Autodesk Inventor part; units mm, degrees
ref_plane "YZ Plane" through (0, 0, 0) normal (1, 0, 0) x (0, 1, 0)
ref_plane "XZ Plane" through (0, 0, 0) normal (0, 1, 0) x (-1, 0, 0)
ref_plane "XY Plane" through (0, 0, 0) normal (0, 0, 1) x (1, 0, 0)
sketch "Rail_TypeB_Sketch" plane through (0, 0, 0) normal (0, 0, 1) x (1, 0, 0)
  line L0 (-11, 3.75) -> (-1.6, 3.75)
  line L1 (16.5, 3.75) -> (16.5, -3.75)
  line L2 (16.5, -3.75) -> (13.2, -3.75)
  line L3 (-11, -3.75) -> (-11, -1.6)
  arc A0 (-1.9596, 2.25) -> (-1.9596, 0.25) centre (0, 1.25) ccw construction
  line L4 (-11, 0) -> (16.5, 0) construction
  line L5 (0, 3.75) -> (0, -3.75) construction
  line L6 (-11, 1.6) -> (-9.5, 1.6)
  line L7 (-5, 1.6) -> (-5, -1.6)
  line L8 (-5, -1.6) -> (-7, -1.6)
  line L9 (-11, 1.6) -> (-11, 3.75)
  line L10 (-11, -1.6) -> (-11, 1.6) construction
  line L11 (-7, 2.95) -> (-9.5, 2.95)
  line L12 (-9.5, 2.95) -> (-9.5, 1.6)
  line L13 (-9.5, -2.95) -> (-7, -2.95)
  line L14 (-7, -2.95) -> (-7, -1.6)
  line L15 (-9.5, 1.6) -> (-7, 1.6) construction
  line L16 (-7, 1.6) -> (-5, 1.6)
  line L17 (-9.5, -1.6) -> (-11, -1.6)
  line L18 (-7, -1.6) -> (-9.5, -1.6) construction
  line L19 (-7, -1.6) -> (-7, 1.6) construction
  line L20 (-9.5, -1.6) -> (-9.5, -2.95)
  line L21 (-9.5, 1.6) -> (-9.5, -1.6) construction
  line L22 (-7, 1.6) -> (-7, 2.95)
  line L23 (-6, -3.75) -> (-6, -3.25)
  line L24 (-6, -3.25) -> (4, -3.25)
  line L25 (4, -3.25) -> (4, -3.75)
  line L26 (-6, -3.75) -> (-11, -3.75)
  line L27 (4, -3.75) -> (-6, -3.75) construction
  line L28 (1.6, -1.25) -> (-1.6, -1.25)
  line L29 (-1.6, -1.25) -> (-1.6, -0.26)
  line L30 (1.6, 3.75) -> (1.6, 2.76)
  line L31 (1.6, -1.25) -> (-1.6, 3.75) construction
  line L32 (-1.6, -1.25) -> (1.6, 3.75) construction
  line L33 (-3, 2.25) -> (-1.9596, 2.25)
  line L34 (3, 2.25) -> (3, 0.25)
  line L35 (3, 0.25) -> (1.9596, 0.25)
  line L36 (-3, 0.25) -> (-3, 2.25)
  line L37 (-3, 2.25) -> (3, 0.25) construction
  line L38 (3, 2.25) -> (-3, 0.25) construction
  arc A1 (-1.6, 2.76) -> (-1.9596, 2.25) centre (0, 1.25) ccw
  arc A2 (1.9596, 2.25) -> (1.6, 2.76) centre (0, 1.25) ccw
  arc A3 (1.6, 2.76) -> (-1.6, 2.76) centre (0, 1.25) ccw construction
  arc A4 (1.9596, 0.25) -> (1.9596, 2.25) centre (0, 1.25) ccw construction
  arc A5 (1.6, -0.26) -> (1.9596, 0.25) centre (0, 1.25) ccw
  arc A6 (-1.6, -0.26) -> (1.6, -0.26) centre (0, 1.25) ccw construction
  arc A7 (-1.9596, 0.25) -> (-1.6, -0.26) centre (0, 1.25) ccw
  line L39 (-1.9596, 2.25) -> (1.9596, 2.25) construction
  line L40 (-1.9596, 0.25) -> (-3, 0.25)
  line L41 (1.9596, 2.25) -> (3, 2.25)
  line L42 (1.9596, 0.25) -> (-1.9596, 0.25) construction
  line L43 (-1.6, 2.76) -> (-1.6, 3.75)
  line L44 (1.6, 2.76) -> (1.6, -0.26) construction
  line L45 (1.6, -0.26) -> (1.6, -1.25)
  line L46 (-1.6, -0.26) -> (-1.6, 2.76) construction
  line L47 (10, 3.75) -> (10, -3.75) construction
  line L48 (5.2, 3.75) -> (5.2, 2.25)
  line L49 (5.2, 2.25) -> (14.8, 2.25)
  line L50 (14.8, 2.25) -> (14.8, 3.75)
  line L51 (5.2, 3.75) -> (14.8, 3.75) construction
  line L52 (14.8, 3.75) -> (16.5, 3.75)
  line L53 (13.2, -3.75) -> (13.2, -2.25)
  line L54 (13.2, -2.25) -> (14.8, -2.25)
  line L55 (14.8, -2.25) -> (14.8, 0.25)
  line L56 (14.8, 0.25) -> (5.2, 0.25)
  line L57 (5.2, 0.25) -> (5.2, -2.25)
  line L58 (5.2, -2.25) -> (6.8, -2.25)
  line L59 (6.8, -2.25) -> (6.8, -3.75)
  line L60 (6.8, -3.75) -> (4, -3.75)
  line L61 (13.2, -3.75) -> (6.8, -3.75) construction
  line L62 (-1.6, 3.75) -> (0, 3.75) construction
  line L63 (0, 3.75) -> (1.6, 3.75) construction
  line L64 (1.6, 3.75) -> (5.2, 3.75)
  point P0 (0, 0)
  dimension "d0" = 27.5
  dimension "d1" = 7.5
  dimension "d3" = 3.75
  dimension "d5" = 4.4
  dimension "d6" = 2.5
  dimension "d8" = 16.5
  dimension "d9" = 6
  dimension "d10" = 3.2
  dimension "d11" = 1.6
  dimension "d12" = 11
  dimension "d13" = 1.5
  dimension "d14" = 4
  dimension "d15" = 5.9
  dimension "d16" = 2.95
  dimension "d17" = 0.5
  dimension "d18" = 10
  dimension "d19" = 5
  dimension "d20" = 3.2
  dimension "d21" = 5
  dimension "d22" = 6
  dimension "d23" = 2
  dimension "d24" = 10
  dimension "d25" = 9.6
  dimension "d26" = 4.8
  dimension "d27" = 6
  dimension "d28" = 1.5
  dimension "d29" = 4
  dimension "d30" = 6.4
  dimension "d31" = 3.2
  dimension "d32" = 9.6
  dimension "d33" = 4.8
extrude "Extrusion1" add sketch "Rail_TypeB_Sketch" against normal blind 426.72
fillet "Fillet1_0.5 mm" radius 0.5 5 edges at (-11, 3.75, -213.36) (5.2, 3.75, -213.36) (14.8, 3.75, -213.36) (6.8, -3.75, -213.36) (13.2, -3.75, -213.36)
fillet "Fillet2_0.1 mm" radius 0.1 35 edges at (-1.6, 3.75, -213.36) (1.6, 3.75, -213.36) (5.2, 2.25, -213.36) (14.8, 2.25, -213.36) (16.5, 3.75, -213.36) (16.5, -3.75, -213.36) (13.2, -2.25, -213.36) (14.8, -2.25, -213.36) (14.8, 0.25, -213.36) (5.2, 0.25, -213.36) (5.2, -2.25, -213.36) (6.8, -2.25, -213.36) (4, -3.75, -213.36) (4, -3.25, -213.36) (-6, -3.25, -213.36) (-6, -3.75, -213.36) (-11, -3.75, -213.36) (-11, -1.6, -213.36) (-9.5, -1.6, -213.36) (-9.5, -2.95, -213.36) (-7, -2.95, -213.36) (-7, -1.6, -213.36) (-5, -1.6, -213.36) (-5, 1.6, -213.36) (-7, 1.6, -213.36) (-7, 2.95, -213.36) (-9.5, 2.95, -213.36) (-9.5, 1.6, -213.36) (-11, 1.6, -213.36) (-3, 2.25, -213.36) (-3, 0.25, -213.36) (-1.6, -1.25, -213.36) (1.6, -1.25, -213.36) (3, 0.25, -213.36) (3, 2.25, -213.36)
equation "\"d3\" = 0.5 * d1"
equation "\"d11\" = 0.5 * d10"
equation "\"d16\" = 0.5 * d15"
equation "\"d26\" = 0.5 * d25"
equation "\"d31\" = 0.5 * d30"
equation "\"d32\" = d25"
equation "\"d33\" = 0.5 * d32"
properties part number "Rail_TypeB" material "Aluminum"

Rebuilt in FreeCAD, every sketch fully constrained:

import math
import FreeCAD as App
import Part
import Sketcher
from FreeCAD import Vector


def edges_at(feature, points):
    """Names of the edges that pass closest to the given points."""
    edges = feature.Shape.Edges
    near = lambda p: min(range(len(edges)), key=lambda i: edges[i].distToShape(Part.Vertex(*p))[0])
    return sorted({f"Edge{near(p) + 1}" for p in points})

doc = App.newDocument("Part")
body = doc.addObject("PartDesign::Body", "Body")

# Sketch on XY plane
sketch1 = body.newObject("Sketcher::SketchObject", "Sketch")
sketch1.AttachmentSupport = (doc.getObject("XY_Plane"), [""])
sketch1.MapMode = "FlatFace"
sketch1.addGeometry(Part.LineSegment(Vector(-1.6, 3.75, 0), Vector(-11, 3.75, 0)), False)
sketch1.addGeometry(Part.LineSegment(Vector(-11, 3.75, 0), Vector(-11, 1.6, 0)), False)
sketch1.addGeometry(Part.LineSegment(Vector(-11, 1.6, 0), Vector(-9.5, 1.6, 0)), False)
sketch1.addGeometry(Part.LineSegment(Vector(-9.5, 1.6, 0), Vector(-9.5, 2.95, 0)), False)
sketch1.addGeometry(Part.LineSegment(Vector(-9.5, 2.95, 0), Vector(-7, 2.95, 0)), False)
sketch1.addGeometry(Part.LineSegment(Vector(-7, 2.95, 0), Vector(-7, 1.6, 0)), False)
sketch1.addGeometry(Part.LineSegment(Vector(-7, 1.6, 0), Vector(-5, 1.6, 0)), False)
sketch1.addGeometry(Part.LineSegment(Vector(-5, 1.6, 0), Vector(-5, -1.6, 0)), False)
sketch1.addGeometry(Part.LineSegment(Vector(-5, -1.6, 0), Vector(-7, -1.6, 0)), False)
sketch1.addGeometry(Part.LineSegment(Vector(-7, -1.6, 0), Vector(-7, -2.95, 0)), False)
sketch1.addGeometry(Part.LineSegment(Vector(-7, -2.95, 0), Vector(-9.5, -2.95, 0)), False)
sketch1.addGeometry(Part.LineSegment(Vector(-9.5, -2.95, 0), Vector(-9.5, -1.6, 0)), False)
sketch1.addGeometry(Part.LineSegment(Vector(-9.5, -1.6, 0), Vector(-11, -1.6, 0)), False)
sketch1.addGeometry(Part.LineSegment(Vector(-11, -1.6, 0), Vector(-11, -3.75, 0)), False)
sketch1.addGeometry(Part.LineSegment(Vector(-11, -3.75, 0), Vector(-6, -3.75, 0)), False)
sketch1.addGeometry(Part.LineSegment(Vector(-6, -3.75, 0), Vector(-6, -3.25, 0)), False)
sketch1.addGeometry(Part.LineSegment(Vector(-6, -3.25, 0), Vector(4, -3.25, 0)), False)
sketch1.addGeometry(Part.LineSegment(Vector(4, -3.25, 0), Vector(4, -3.75, 0)), False)
sketch1.addGeometry(Part.LineSegment(Vector(4, -3.75, 0), Vector(6.8, -3.75, 0)), False)
sketch1.addGeometry(Part.LineSegment(Vector(6.8, -3.75, 0), Vector(6.8, -2.25, 0)), False)
sketch1.addGeometry(Part.LineSegment(Vector(6.8, -2.25, 0), Vector(5.2, -2.25, 0)), False)
sketch1.addGeometry(Part.LineSegment(Vector(5.2, -2.25, 0), Vector(5.2, 0.25, 0)), False)
sketch1.addGeometry(Part.LineSegment(Vector(5.2, 0.25, 0), Vector(14.8, 0.25, 0)), False)
sketch1.addGeometry(Part.LineSegment(Vector(14.8, 0.25, 0), Vector(14.8, -2.25, 0)), False)
sketch1.addGeometry(Part.LineSegment(Vector(14.8, -2.25, 0), Vector(13.2, -2.25, 0)), False)
sketch1.addGeometry(Part.LineSegment(Vector(13.2, -2.25, 0), Vector(13.2, -3.75, 0)), False)
sketch1.addGeometry(Part.LineSegment(Vector(13.2, -3.75, 0), Vector(16.5, -3.75, 0)), False)
sketch1.addGeometry(Part.LineSegment(Vector(16.5, -3.75, 0), Vector(16.5, 3.75, 0)), False)
sketch1.addGeometry(Part.LineSegment(Vector(16.5, 3.75, 0), Vector(14.8, 3.75, 0)), False)
sketch1.addGeometry(Part.LineSegment(Vector(14.8, 3.75, 0), Vector(14.8, 2.25, 0)), False)
sketch1.addGeometry(Part.LineSegment(Vector(14.8, 2.25, 0), Vector(5.2, 2.25, 0)), False)
sketch1.addGeometry(Part.LineSegment(Vector(5.2, 2.25, 0), Vector(5.2, 3.75, 0)), False)
sketch1.addGeometry(Part.LineSegment(Vector(5.2, 3.75, 0), Vector(1.6, 3.75, 0)), False)
sketch1.addGeometry(Part.LineSegment(Vector(1.6, 3.75, 0), Vector(1.6, 2.76, 0)), False)
sketch1.addGeometry(Part.ArcOfCircle(Part.Circle(Vector(0, 1.25, 0), Vector(0, 0, 1), 2.200023), math.radians(27.035595), math.radians(43.342385)), False)
sketch1.addGeometry(Part.LineSegment(Vector(1.9596, 2.25, 0), Vector(3, 2.25, 0)), False)
sketch1.addGeometry(Part.LineSegment(Vector(3, 2.25, 0), Vector(3, 0.25, 0)), False)
sketch1.addGeometry(Part.LineSegment(Vector(3, 0.25, 0), Vector(1.9596, 0.25, 0)), False)
sketch1.addGeometry(Part.ArcOfCircle(Part.Circle(Vector(0, 1.25, 0), Vector(0, 0, 1), 2.200007), math.radians(-43.342385), math.radians(-27.035595)), False)
sketch1.addGeometry(Part.LineSegment(Vector(1.6, -0.26, 0), Vector(1.6, -1.25, 0)), False)
sketch1.addGeometry(Part.LineSegment(Vector(1.6, -1.25, 0), Vector(-1.6, -1.25, 0)), False)
sketch1.addGeometry(Part.LineSegment(Vector(-1.6, -1.25, 0), Vector(-1.6, -0.26, 0)), False)
sketch1.addGeometry(Part.ArcOfCircle(Part.Circle(Vector(0, 1.25, 0), Vector(0, 0, 1), 2.200023), math.radians(-152.964405), math.radians(-136.657615)), False)
sketch1.addGeometry(Part.LineSegment(Vector(-1.9596, 0.25, 0), Vector(-3, 0.25, 0)), False)
sketch1.addGeometry(Part.LineSegment(Vector(-3, 0.25, 0), Vector(-3, 2.25, 0)), False)
sketch1.addGeometry(Part.LineSegment(Vector(-3, 2.25, 0), Vector(-1.9596, 2.25, 0)), False)
sketch1.addGeometry(Part.ArcOfCircle(Part.Circle(Vector(0, 1.25, 0), Vector(0, 0, 1), 2.200007), math.radians(136.657615), math.radians(152.964405)), False)
sketch1.addGeometry(Part.LineSegment(Vector(-1.6, 2.76, 0), Vector(-1.6, 3.75, 0)), False)
sketch1.addConstraint(Sketcher.Constraint("Coincident", 0, 2, 1, 1))
sketch1.addConstraint(Sketcher.Constraint("Coincident", 1, 2, 2, 1))
sketch1.addConstraint(Sketcher.Constraint("Coincident", 2, 2, 3, 1))
sketch1.addConstraint(Sketcher.Constraint("Coincident", 3, 2, 4, 1))
sketch1.addConstraint(Sketcher.Constraint("Coincident", 4, 2, 5, 1))
sketch1.addConstraint(Sketcher.Constraint("Coincident", 5, 2, 6, 1))
sketch1.addConstraint(Sketcher.Constraint("Coincident", 6, 2, 7, 1))
sketch1.addConstraint(Sketcher.Constraint("Coincident", 7, 2, 8, 1))
sketch1.addConstraint(Sketcher.Constraint("Coincident", 8, 2, 9, 1))
sketch1.addConstraint(Sketcher.Constraint("Coincident", 9, 2, 10, 1))
sketch1.addConstraint(Sketcher.Constraint("Coincident", 10, 2, 11, 1))
sketch1.addConstraint(Sketcher.Constraint("Coincident", 11, 2, 12, 1))
sketch1.addConstraint(Sketcher.Constraint("Coincident", 12, 2, 13, 1))
sketch1.addConstraint(Sketcher.Constraint("Coincident", 13, 2, 14, 1))
sketch1.addConstraint(Sketcher.Constraint("Coincident", 14, 2, 15, 1))
sketch1.addConstraint(Sketcher.Constraint("Coincident", 15, 2, 16, 1))
sketch1.addConstraint(Sketcher.Constraint("Coincident", 16, 2, 17, 1))
sketch1.addConstraint(Sketcher.Constraint("Coincident", 17, 2, 18, 1))
sketch1.addConstraint(Sketcher.Constraint("Coincident", 18, 2, 19, 1))
sketch1.addConstraint(Sketcher.Constraint("Coincident", 19, 2, 20, 1))
sketch1.addConstraint(Sketcher.Constraint("Coincident", 20, 2, 21, 1))
sketch1.addConstraint(Sketcher.Constraint("Coincident", 21, 2, 22, 1))
sketch1.addConstraint(Sketcher.Constraint("Coincident", 22, 2, 23, 1))
sketch1.addConstraint(Sketcher.Constraint("Coincident", 23, 2, 24, 1))
sketch1.addConstraint(Sketcher.Constraint("Coincident", 24, 2, 25, 1))
sketch1.addConstraint(Sketcher.Constraint("Coincident", 25, 2, 26, 1))
sketch1.addConstraint(Sketcher.Constraint("Coincident", 26, 2, 27, 1))
sketch1.addConstraint(Sketcher.Constraint("Coincident", 27, 2, 28, 1))
sketch1.addConstraint(Sketcher.Constraint("Coincident", 28, 2, 29, 1))
sketch1.addConstraint(Sketcher.Constraint("Coincident", 29, 2, 30, 1))
sketch1.addConstraint(Sketcher.Constraint("Coincident", 30, 2, 31, 1))
sketch1.addConstraint(Sketcher.Constraint("Coincident", 31, 2, 32, 1))
sketch1.addConstraint(Sketcher.Constraint("Coincident", 32, 2, 33, 1))
sketch1.addConstraint(Sketcher.Constraint("Coincident", 33, 2, 34, 2))
sketch1.addConstraint(Sketcher.Constraint("Coincident", 34, 1, 35, 1))
sketch1.addConstraint(Sketcher.Constraint("Coincident", 35, 2, 36, 1))
sketch1.addConstraint(Sketcher.Constraint("Coincident", 36, 2, 37, 1))
sketch1.addConstraint(Sketcher.Constraint("Coincident", 37, 2, 38, 2))
sketch1.addConstraint(Sketcher.Constraint("Coincident", 38, 1, 39, 1))
sketch1.addConstraint(Sketcher.Constraint("Coincident", 39, 2, 40, 1))
sketch1.addConstraint(Sketcher.Constraint("Coincident", 40, 2, 41, 1))
sketch1.addConstraint(Sketcher.Constraint("Coincident", 41, 2, 42, 2))
sketch1.addConstraint(Sketcher.Constraint("Coincident", 42, 1, 43, 1))
sketch1.addConstraint(Sketcher.Constraint("Coincident", 43, 2, 44, 1))
sketch1.addConstraint(Sketcher.Constraint("Coincident", 44, 2, 45, 1))
sketch1.addConstraint(Sketcher.Constraint("Coincident", 45, 2, 46, 2))
sketch1.addConstraint(Sketcher.Constraint("Coincident", 46, 1, 47, 1))
sketch1.addConstraint(Sketcher.Constraint("Coincident", 47, 2, 0, 1))
sketch1.addConstraint(Sketcher.Constraint("Horizontal", 0))
sketch1.addConstraint(Sketcher.Constraint("Vertical", 1))
sketch1.addConstraint(Sketcher.Constraint("Horizontal", 2))
sketch1.addConstraint(Sketcher.Constraint("Vertical", 3))
sketch1.addConstraint(Sketcher.Constraint("Horizontal", 4))
sketch1.addConstraint(Sketcher.Constraint("Vertical", 5))
sketch1.addConstraint(Sketcher.Constraint("Horizontal", 6))
sketch1.addConstraint(Sketcher.Constraint("Vertical", 7))
sketch1.addConstraint(Sketcher.Constraint("Horizontal", 8))
sketch1.addConstraint(Sketcher.Constraint("Vertical", 9))
sketch1.addConstraint(Sketcher.Constraint("Horizontal", 10))
sketch1.addConstraint(Sketcher.Constraint("Vertical", 11))
sketch1.addConstraint(Sketcher.Constraint("Horizontal", 12))
sketch1.addConstraint(Sketcher.Constraint("Vertical", 13))
sketch1.addConstraint(Sketcher.Constraint("Horizontal", 14))
sketch1.addConstraint(Sketcher.Constraint("Vertical", 15))
sketch1.addConstraint(Sketcher.Constraint("Horizontal", 16))
sketch1.addConstraint(Sketcher.Constraint("Vertical", 17))
sketch1.addConstraint(Sketcher.Constraint("Horizontal", 18))
sketch1.addConstraint(Sketcher.Constraint("Vertical", 19))
sketch1.addConstraint(Sketcher.Constraint("Horizontal", 20))
sketch1.addConstraint(Sketcher.Constraint("Vertical", 21))
sketch1.addConstraint(Sketcher.Constraint("Horizontal", 22))
sketch1.addConstraint(Sketcher.Constraint("Vertical", 23))
sketch1.addConstraint(Sketcher.Constraint("Horizontal", 24))
sketch1.addConstraint(Sketcher.Constraint("Vertical", 25))
sketch1.addConstraint(Sketcher.Constraint("Horizontal", 26))
sketch1.addConstraint(Sketcher.Constraint("Vertical", 27))
sketch1.addConstraint(Sketcher.Constraint("Horizontal", 28))
sketch1.addConstraint(Sketcher.Constraint("Vertical", 29))
sketch1.addConstraint(Sketcher.Constraint("Horizontal", 30))
sketch1.addConstraint(Sketcher.Constraint("Vertical", 31))
sketch1.addConstraint(Sketcher.Constraint("Horizontal", 32))
sketch1.addConstraint(Sketcher.Constraint("Vertical", 33))
sketch1.addConstraint(Sketcher.Constraint("Horizontal", 35))
sketch1.addConstraint(Sketcher.Constraint("Vertical", 36))
sketch1.addConstraint(Sketcher.Constraint("Horizontal", 37))
sketch1.addConstraint(Sketcher.Constraint("Vertical", 39))
sketch1.addConstraint(Sketcher.Constraint("Horizontal", 40))
sketch1.addConstraint(Sketcher.Constraint("Vertical", 41))
sketch1.addConstraint(Sketcher.Constraint("Horizontal", 43))
sketch1.addConstraint(Sketcher.Constraint("Vertical", 44))
sketch1.addConstraint(Sketcher.Constraint("Horizontal", 45))
sketch1.addConstraint(Sketcher.Constraint("Vertical", 47))
sketch1.addConstraint(Sketcher.Constraint("Coincident", 38, 3, 34, 3))
sketch1.addConstraint(Sketcher.Constraint("Coincident", 42, 3, 34, 3))
sketch1.addConstraint(Sketcher.Constraint("Coincident", 46, 3, 34, 3))
sketch1.addConstraint(Sketcher.Constraint("Equal", 34, 38))
sketch1.addConstraint(Sketcher.Constraint("Equal", 38, 42))
sketch1.addConstraint(Sketcher.Constraint("Equal", 42, 46))
sketch1.addConstraint(Sketcher.Constraint("Symmetric", 38, 1, 41, 2, -2))
sketch1.addConstraint(Sketcher.Constraint("Symmetric", 36, 2, 43, 2, -2))
sketch1.addConstraint(Sketcher.Constraint("Symmetric", 32, 2, 47, 2, -2))
sketch1.addConstraint(Sketcher.Constraint("Symmetric", 5, 2, 8, 2, -1))
sketch1.addConstraint(Sketcher.Constraint("Symmetric", 3, 2, 10, 2, -1))
sketch1.addConstraint(Sketcher.Constraint("Symmetric", 1, 2, 12, 2, -1))
sketch1.addConstraint(Sketcher.Constraint("Symmetric", 23, 2, 29, 2, -1))
sketch1.addConstraint(Sketcher.Constraint("Symmetric", 20, 2, 30, 2, -1))
sketch1.addConstraint(Sketcher.Constraint("Horizontal", 2, 2, 5, 2))
sketch1.addConstraint(Sketcher.Constraint("Horizontal", 14, 2, 17, 2))
sketch1.addConstraint(Sketcher.Constraint("Horizontal", 18, 2, 25, 2))
sketch1.addConstraint(Sketcher.Constraint("Horizontal", 0, 2, 27, 2))
sketch1.addConstraint(Sketcher.Constraint("Horizontal", 30, 2, 34, 1))
sketch1.addConstraint(Sketcher.Constraint("Horizontal", 22, 2, 36, 2))
sketch1.addConstraint(Sketcher.Constraint("Horizontal", 35, 2, 44, 2))
sketch1.addConstraint(Sketcher.Constraint("Vertical", 34, 1, 37, 2))
sketch1.addConstraint(Sketcher.Constraint("Vertical", 33, 2, 38, 1))
sketch1.addConstraint(Sketcher.Constraint("Equal", 20, 24))
sketch1.addConstraint(Sketcher.Constraint("Equal", 40, 7))
sketch1.addConstraint(Sketcher.Constraint("Equal", 1, 13))
sketch1.addConstraint(Sketcher.Constraint("Equal", 12, 19))
sketch1.addConstraint(Sketcher.Constraint("Equal", 10, 21))
sketch1.addConstraint(Sketcher.Constraint("Equal", 8, 36))
sketch1.addConstraint(Sketcher.Constraint("Equal", 33, 39))
sketch1.addConstraint(Sketcher.Constraint("Radius", 34, 2.2))
sketch1.addConstraint(Sketcher.Constraint("DistanceX", 6, 1, 6, 2, 2.0))
sketch1.addConstraint(Sketcher.Constraint("DistanceX", 14, 1, 14, 2, 5.0))
sketch1.addConstraint(Sketcher.Constraint("DistanceX", 16, 1, 16, 2, 10.0))
sketch1.addConstraint(Sketcher.Constraint("DistanceX", 2, 1, 2, 2, 1.5))
sketch1.addConstraint(Sketcher.Constraint("DistanceX", 4, 1, 4, 2, 2.5))
sketch1.addConstraint(Sketcher.Constraint("DistanceX", 20, 2, 20, 1, 1.6))
sketch1.addConstraint(Sketcher.Constraint("DistanceX", 22, 1, 22, 2, 9.6))
sketch1.addConstraint(Sketcher.Constraint("DistanceX", 40, 2, 40, 1, 3.2))
sketch1.addConstraint(Sketcher.Constraint("DistanceY", 15, 1, 15, 2, 0.5))
sketch1.addConstraint(Sketcher.Constraint("DistanceX", 0, 2, -1, 1, 11.0))
sketch1.addConstraint(Sketcher.Constraint("DistanceX", 6, 2, 43, 2, 2.0))
sketch1.addConstraint(Sketcher.Constraint("DistanceX", -1, 1, 26, 2, 16.5))
sketch1.addConstraint(Sketcher.Constraint("DistanceY", -1, 1, 3, 2, 2.95))
sketch1.addConstraint(Sketcher.Constraint("DistanceX", 18, 1, 18, 2, 2.8))
pad1 = body.newObject("PartDesign::Pad", "Pad")
pad1.Profile = sketch1
pad1.Length = 426.72
pad1.Reversed = True
doc.recompute()

fillet = body.newObject("PartDesign::Fillet", "Fillet")
fillet.Base = (pad1, edges_at(pad1, [
    (-11, 3.75, -213.36),
    (5.2, 3.75, -213.36),
    (14.8, 3.75, -213.36),
    (6.8, -3.75, -213.36),
    (13.2, -3.75, -213.36),
]))
fillet.Radius = 0.5
doc.recompute()

fillet2 = body.newObject("PartDesign::Fillet", "Fillet001")
fillet2.Base = (fillet, edges_at(fillet, [
    (-1.6, 3.75, -213.36),
    (1.6, 3.75, -213.36),
    (5.2, 2.25, -213.36),
    (14.8, 2.25, -213.36),
    (16.5, 3.75, -213.36),
    (16.5, -3.75, -213.36),
    (13.2, -2.25, -213.36),
    (14.8, -2.25, -213.36),
    (14.8, 0.25, -213.36),
    (5.2, 0.25, -213.36),
    (5.2, -2.25, -213.36),
    (6.8, -2.25, -213.36),
    (4, -3.75, -213.36),
    (4, -3.25, -213.36),
    (-6, -3.25, -213.36),
    (-6, -3.75, -213.36),
    (-11, -3.75, -213.36),
    (-11, -1.6, -213.36),
    (-9.5, -1.6, -213.36),
    (-9.5, -2.95, -213.36),
    (-7, -2.95, -213.36),
    (-7, -1.6, -213.36),
    (-5, -1.6, -213.36),
    (-5, 1.6, -213.36),
    (-7, 1.6, -213.36),
    (-7, 2.95, -213.36),
    (-9.5, 2.95, -213.36),
    (-9.5, 1.6, -213.36),
    (-11, 1.6, -213.36),
    (-3, 2.25, -213.36),
    (-3, 0.25, -213.36),
    (-1.6, -1.25, -213.36),
    (1.6, -1.25, -213.36),
    (3, 0.25, -213.36),
    (3, 2.25, -213.36),
]))
fillet2.Radius = 0.1

doc.recompute()
